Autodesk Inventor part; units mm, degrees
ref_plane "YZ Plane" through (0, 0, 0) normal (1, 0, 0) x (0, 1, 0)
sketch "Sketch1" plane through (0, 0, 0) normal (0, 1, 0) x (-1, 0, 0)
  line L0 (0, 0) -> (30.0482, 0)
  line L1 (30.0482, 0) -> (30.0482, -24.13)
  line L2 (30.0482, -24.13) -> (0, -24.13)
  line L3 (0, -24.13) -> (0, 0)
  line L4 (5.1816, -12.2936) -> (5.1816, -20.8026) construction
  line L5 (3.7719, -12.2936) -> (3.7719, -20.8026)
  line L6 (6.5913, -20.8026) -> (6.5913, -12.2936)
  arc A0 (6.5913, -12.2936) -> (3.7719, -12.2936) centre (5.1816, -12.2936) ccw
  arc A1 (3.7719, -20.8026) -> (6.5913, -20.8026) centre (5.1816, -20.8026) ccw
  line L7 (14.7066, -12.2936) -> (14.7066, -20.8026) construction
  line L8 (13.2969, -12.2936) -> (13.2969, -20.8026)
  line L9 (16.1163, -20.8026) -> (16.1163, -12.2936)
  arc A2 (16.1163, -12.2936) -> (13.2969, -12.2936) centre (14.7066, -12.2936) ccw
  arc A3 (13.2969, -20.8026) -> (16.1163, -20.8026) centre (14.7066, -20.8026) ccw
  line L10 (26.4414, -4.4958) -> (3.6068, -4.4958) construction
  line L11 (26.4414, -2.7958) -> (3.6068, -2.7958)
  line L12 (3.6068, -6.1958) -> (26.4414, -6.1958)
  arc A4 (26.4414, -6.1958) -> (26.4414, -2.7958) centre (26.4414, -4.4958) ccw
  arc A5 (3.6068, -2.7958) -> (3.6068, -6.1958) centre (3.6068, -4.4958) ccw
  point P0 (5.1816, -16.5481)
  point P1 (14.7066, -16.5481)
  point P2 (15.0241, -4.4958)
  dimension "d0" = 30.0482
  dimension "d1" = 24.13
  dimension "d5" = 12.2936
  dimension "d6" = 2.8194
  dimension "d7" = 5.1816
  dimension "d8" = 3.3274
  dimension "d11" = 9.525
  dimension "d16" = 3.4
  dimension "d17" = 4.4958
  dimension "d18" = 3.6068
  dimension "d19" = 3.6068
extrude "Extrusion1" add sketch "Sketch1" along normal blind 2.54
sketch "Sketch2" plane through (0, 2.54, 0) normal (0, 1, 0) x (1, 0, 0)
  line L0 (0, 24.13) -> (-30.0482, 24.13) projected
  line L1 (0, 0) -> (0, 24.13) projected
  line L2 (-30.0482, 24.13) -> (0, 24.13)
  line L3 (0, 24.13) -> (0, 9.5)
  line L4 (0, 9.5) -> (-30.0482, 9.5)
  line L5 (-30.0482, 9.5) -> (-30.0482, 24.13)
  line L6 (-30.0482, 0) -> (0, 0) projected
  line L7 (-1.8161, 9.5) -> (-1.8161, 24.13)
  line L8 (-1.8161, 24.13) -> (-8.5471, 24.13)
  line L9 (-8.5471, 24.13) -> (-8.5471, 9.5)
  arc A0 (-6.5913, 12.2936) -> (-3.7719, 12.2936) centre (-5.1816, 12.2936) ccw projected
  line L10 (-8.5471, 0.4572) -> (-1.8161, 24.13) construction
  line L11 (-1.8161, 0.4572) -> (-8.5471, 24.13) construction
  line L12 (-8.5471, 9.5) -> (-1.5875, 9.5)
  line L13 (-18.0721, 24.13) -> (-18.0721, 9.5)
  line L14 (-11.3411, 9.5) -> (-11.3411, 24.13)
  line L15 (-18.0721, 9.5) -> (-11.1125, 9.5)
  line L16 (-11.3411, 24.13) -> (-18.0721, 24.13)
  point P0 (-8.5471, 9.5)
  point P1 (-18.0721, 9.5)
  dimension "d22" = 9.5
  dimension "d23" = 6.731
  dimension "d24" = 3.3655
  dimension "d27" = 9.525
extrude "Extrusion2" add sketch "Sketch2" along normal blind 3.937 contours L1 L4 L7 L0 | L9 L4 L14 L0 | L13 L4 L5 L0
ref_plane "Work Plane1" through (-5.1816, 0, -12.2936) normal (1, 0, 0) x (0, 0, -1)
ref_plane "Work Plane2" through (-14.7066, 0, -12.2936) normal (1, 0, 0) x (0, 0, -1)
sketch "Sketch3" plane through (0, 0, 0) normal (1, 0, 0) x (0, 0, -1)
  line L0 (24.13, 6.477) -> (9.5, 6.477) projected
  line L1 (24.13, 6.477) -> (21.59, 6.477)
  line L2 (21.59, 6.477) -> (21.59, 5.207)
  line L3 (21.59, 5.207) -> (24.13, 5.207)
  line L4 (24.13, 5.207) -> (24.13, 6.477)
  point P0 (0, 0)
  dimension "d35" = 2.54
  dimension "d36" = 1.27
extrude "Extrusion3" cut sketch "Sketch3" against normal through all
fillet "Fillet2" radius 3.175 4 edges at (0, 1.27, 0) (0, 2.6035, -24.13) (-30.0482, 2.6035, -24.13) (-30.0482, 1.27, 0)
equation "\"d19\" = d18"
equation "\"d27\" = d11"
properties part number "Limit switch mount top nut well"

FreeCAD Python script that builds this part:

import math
import FreeCAD as App
import Part
import Sketcher
from FreeCAD import Vector
Q = App.Units.Quantity


def edges_at(feature, points):
    """Names of the edges that pass closest to the given points."""
    edges = feature.Shape.Edges
    near = lambda p: min(range(len(edges)), key=lambda i: edges[i].distToShape(Part.Vertex(*p))[0])
    return sorted({f"Edge{near(p) + 1}" for p in points})


def add_polygon(sketch, points):
    """Adds a closed chain of lines whose ends are joined by coincident constraints."""
    first, n = sketch.GeometryCount, len(points)
    for a, b in zip(points, points[1:] + points[:1]):
        sketch.addGeometry(Part.LineSegment(App.Vector(*a, 0), App.Vector(*b, 0)), False)
    for i in range(n):
        sketch.addConstraint(Sketcher.Constraint("Coincident", first + i, 2, first + (i + 1) % n, 1))

doc = App.newDocument("Part")
params = doc.addObject("Spreadsheet::Sheet", "Params")
for row, (alias, value) in enumerate([
    ("sketch1_height", "0.95 in"),
    ("sketch1_width", "1.183 in"),
    ("pad1_length", "0.1 in"),
    ("pad2_length", "0.155 in"),
    ("sketch3_height", "0.1 in"),
    ("sketch3_width", "0.05 in"),
    ("fillet_radius", "0.125 in"),
], start=1):
    params.set(f"A{row}", alias)
    params.set(f"B{row}", "=" + value)
    params.setAlias(f"B{row}", alias)

body = doc.addObject("PartDesign::Body", "Body")

sketch1 = body.newObject("Sketcher::SketchObject", "Sketch")
sketch1.AttachmentSupport = (doc.getObject("XZ_Plane"), [""])
sketch1.MapMode = "FlatFace"
add_polygon(sketch1, [(-30, 0), (0, 0), (0, -24.1), (-30, -24.1)])
sketch1.addGeometry(Part.LineSegment(Vector(-3.8, -20.8, 0), Vector(-3.8, -12.3, 0)), False)
sketch1.addGeometry(Part.ArcOfCircle(Part.Circle(Vector(-5.2, -12.3, 0), Vector(0, 0, 1), 1.4), math.radians(0), math.radians(180)), False)
sketch1.addGeometry(Part.LineSegment(Vector(-6.6, -12.3, 0), Vector(-6.6, -20.8, 0)), False)
sketch1.addGeometry(Part.ArcOfCircle(Part.Circle(Vector(-5.2, -20.8, 0), Vector(0, 0, 1), 1.4), math.radians(180), math.radians(360)), False)
sketch1.addGeometry(Part.LineSegment(Vector(-13.3, -20.8, 0), Vector(-13.3, -12.3, 0)), False)
sketch1.addGeometry(Part.ArcOfCircle(Part.Circle(Vector(-14.7, -12.3, 0), Vector(0, 0, 1), 1.4), math.radians(0), math.radians(180)), False)
sketch1.addGeometry(Part.LineSegment(Vector(-16.1, -12.3, 0), Vector(-16.1, -20.8, 0)), False)
sketch1.addGeometry(Part.ArcOfCircle(Part.Circle(Vector(-14.7, -20.8, 0), Vector(0, 0, 1), 1.4), math.radians(180), math.radians(360)), False)
sketch1.addGeometry(Part.LineSegment(Vector(-3.6, -2.8, 0), Vector(-26.4, -2.8, 0)), False)
sketch1.addGeometry(Part.ArcOfCircle(Part.Circle(Vector(-26.4, -4.5, 0), Vector(0, 0, 1), 1.7), math.radians(90), math.radians(270)), False)
sketch1.addGeometry(Part.LineSegment(Vector(-26.4, -6.2, 0), Vector(-3.6, -6.2, 0)), False)
sketch1.addGeometry(Part.ArcOfCircle(Part.Circle(Vector(-3.6, -4.5, 0), Vector(0, 0, 1), 1.7), math.radians(-90), math.radians(90)), False)
sketch1.addConstraint([
    Sketcher.Constraint("Tangent", 4, 2, 5, 1),
    Sketcher.Constraint("Tangent", 5, 2, 6, 1),
    Sketcher.Constraint("Tangent", 6, 2, 7, 1),
    Sketcher.Constraint("Tangent", 7, 2, 4, 1),
    Sketcher.Constraint("Tangent", 8, 2, 9, 1),
    Sketcher.Constraint("Tangent", 9, 2, 10, 1),
    Sketcher.Constraint("Tangent", 10, 2, 11, 1),
    Sketcher.Constraint("Tangent", 11, 2, 8, 1),
    Sketcher.Constraint("Tangent", 12, 2, 13, 1),
    Sketcher.Constraint("Tangent", 13, 2, 14, 1),
    Sketcher.Constraint("Tangent", 14, 2, 15, 1),
    Sketcher.Constraint("Tangent", 15, 2, 12, 1),
    Sketcher.Constraint("Horizontal", 0),
    Sketcher.Constraint("Vertical", 1),
    Sketcher.Constraint("Horizontal", 2),
    Sketcher.Constraint("Vertical", 3),
    Sketcher.Constraint("Vertical", 4),
    Sketcher.Constraint("Vertical", 6),
    Sketcher.Constraint("Vertical", 8),
    Sketcher.Constraint("Vertical", 10),
    Sketcher.Constraint("Horizontal", 12),
    Sketcher.Constraint("Horizontal", 14),
    Sketcher.Constraint("Coincident", 0, 2, -1, 1),
    Sketcher.Constraint("Equal", 7, 9),
    Sketcher.Constraint("Horizontal", 5, 3, 9, 3),
    Sketcher.Constraint("Horizontal", 7, 3, 11, 3),
    Sketcher.Constraint("DistanceY", 1, 2, 1, 1, Q("0.95 in")),
    Sketcher.Constraint("Radius", 5, Q("0.0555 in")),
    Sketcher.Constraint("DistanceX", 0, 1, 0, 2, Q("1.183 in")),
    Sketcher.Constraint("Radius", 13, 1.7),
    Sketcher.Constraint("DistanceX", 5, 3, -1, 1, Q("0.204 in")),
    Sketcher.Constraint("DistanceY", 5, 3, -1, 1, Q("0.484 in")),
    Sketcher.Constraint("DistanceY", 13, 3, -1, 1, Q("0.177 in")),
    Sketcher.Constraint("DistanceX", 15, 3, -1, 1, Q("0.142 in")),
    Sketcher.Constraint("DistanceX", 9, 3, 5, 3, Q("0.375 in")),
    Sketcher.Constraint("DistanceY", 1, 2, 7, 3, Q("0.131 in")),
    Sketcher.Constraint("DistanceX", 2, 2, 13, 3, Q("0.142 in")),
])
sketch1.setExpression("Constraints[30]", "Params.sketch1_height")
sketch1.setExpression("Constraints[32]", "Params.sketch1_width")
pad1 = body.newObject("PartDesign::Pad", "Pad")
pad1.Profile = sketch1
pad1.setExpression("Length", "Params.pad1_length")
pad1.Reversed = True

sketch2 = body.newObject("Sketcher::SketchObject", "Sketch001")
sketch2.AttachmentSupport = (doc.getObject("XZ_Plane"), [""])
sketch2.MapMode = "FlatFace"
sketch2.AttachmentOffset = App.Placement(Vector(0, 0, -0.1 * 25.4), App.Rotation())
add_polygon(sketch2, [(0, -9.5), (0, -24.1), (-1.8, -24.1), (-1.8, -9.5)])
add_polygon(sketch2, [(-8.5, -9.5), (-8.5, -24.1), (-11.3, -24.1), (-11.3, -9.5)])
add_polygon(sketch2, [(-18.1, -9.5), (-18.1, -24.1), (-30, -24.1), (-30, -9.5)])
sketch2.addConstraint([
    Sketcher.Constraint("Vertical", 0),
    Sketcher.Constraint("Horizontal", 1),
    Sketcher.Constraint("Vertical", 2),
    Sketcher.Constraint("Horizontal", 3),
    Sketcher.Constraint("Vertical", 4),
    Sketcher.Constraint("Horizontal", 5),
    Sketcher.Constraint("Vertical", 6),
    Sketcher.Constraint("Horizontal", 7),
    Sketcher.Constraint("Vertical", 8),
    Sketcher.Constraint("Horizontal", 9),
    Sketcher.Constraint("Vertical", 10),
    Sketcher.Constraint("Horizontal", 11),
    Sketcher.Constraint("PointOnObject", 0, 2, -2),
    Sketcher.Constraint("Horizontal", 1, 2, 4, 2),
    Sketcher.Constraint("Horizontal", 3, 2, 6, 2),
    Sketcher.Constraint("Horizontal", 5, 2, 8, 2),
    Sketcher.Constraint("Horizontal", 7, 2, 10, 2),
    Sketcher.Constraint("DistanceX", 4, 2, 1, 2, Q("0.265 in")),
    Sketcher.Constraint("DistanceX", 5, 2, 1, 2, Q("0.375 in")),
    Sketcher.Constraint("DistanceX", 8, 2, 5, 2, Q("0.265 in")),
    Sketcher.Constraint("DistanceY", 2, 2, -1, 1, 9.5),
    Sketcher.Constraint("DistanceY", 0, 2, -1, 1, Q("0.95 in")),
    Sketcher.Constraint("DistanceX", 1, 2, 1, 1, Q("0.0715 in")),
    Sketcher.Constraint("DistanceX", 9, 2, 9, 1, Q("0.4715 in")),
])
pad2 = body.newObject("PartDesign::Pad", "Pad001")
pad2.Profile = sketch2
pad2.setExpression("Length", "Params.pad2_length")
pad2.Reversed = True

sketch3 = body.newObject("Sketcher::SketchObject", "Sketch002")
sketch3.AttachmentSupport = (doc.getObject("YZ_Plane"), [""])
sketch3.MapMode = "FlatFace"
add_polygon(sketch3, [(5.2, -24.1), (6.5, -24.1), (6.5, -21.6), (5.2, -21.6)])
sketch3.addConstraint([
    Sketcher.Constraint("Horizontal", 0),
    Sketcher.Constraint("Vertical", 1),
    Sketcher.Constraint("Horizontal", 2),
    Sketcher.Constraint("Vertical", 3),
    Sketcher.Constraint("DistanceY", 1, 1, 1, 2, Q("0.1 in")),
    Sketcher.Constraint("DistanceX", 0, 1, 0, 2, Q("0.05 in")),
    Sketcher.Constraint("DistanceY", 0, 2, -1, 1, Q("0.95 in")),
    Sketcher.Constraint("DistanceX", -1, 1, 0, 2, Q("0.255 in")),
])
sketch3.setExpression("Constraints[8]", "Params.sketch3_height")
sketch3.setExpression("Constraints[9]", "Params.sketch3_width")
pocket1 = body.newObject("PartDesign::Pocket", "Pocket")
pocket1.Profile = sketch3
pocket1.Type = "ThroughAll"
doc.recompute()

fillet = body.newObject("PartDesign::Fillet", "Fillet")
fillet.Base = (pocket1, edges_at(pocket1, [
    (0, 1.27, 0),
    (0, 2.603, -24.13),
    (-30.048, 2.603, -24.13),
    (-30.048, 1.27, 0),
]))
fillet.setExpression("Radius", "Params.fillet_radius")

doc.recompute()
